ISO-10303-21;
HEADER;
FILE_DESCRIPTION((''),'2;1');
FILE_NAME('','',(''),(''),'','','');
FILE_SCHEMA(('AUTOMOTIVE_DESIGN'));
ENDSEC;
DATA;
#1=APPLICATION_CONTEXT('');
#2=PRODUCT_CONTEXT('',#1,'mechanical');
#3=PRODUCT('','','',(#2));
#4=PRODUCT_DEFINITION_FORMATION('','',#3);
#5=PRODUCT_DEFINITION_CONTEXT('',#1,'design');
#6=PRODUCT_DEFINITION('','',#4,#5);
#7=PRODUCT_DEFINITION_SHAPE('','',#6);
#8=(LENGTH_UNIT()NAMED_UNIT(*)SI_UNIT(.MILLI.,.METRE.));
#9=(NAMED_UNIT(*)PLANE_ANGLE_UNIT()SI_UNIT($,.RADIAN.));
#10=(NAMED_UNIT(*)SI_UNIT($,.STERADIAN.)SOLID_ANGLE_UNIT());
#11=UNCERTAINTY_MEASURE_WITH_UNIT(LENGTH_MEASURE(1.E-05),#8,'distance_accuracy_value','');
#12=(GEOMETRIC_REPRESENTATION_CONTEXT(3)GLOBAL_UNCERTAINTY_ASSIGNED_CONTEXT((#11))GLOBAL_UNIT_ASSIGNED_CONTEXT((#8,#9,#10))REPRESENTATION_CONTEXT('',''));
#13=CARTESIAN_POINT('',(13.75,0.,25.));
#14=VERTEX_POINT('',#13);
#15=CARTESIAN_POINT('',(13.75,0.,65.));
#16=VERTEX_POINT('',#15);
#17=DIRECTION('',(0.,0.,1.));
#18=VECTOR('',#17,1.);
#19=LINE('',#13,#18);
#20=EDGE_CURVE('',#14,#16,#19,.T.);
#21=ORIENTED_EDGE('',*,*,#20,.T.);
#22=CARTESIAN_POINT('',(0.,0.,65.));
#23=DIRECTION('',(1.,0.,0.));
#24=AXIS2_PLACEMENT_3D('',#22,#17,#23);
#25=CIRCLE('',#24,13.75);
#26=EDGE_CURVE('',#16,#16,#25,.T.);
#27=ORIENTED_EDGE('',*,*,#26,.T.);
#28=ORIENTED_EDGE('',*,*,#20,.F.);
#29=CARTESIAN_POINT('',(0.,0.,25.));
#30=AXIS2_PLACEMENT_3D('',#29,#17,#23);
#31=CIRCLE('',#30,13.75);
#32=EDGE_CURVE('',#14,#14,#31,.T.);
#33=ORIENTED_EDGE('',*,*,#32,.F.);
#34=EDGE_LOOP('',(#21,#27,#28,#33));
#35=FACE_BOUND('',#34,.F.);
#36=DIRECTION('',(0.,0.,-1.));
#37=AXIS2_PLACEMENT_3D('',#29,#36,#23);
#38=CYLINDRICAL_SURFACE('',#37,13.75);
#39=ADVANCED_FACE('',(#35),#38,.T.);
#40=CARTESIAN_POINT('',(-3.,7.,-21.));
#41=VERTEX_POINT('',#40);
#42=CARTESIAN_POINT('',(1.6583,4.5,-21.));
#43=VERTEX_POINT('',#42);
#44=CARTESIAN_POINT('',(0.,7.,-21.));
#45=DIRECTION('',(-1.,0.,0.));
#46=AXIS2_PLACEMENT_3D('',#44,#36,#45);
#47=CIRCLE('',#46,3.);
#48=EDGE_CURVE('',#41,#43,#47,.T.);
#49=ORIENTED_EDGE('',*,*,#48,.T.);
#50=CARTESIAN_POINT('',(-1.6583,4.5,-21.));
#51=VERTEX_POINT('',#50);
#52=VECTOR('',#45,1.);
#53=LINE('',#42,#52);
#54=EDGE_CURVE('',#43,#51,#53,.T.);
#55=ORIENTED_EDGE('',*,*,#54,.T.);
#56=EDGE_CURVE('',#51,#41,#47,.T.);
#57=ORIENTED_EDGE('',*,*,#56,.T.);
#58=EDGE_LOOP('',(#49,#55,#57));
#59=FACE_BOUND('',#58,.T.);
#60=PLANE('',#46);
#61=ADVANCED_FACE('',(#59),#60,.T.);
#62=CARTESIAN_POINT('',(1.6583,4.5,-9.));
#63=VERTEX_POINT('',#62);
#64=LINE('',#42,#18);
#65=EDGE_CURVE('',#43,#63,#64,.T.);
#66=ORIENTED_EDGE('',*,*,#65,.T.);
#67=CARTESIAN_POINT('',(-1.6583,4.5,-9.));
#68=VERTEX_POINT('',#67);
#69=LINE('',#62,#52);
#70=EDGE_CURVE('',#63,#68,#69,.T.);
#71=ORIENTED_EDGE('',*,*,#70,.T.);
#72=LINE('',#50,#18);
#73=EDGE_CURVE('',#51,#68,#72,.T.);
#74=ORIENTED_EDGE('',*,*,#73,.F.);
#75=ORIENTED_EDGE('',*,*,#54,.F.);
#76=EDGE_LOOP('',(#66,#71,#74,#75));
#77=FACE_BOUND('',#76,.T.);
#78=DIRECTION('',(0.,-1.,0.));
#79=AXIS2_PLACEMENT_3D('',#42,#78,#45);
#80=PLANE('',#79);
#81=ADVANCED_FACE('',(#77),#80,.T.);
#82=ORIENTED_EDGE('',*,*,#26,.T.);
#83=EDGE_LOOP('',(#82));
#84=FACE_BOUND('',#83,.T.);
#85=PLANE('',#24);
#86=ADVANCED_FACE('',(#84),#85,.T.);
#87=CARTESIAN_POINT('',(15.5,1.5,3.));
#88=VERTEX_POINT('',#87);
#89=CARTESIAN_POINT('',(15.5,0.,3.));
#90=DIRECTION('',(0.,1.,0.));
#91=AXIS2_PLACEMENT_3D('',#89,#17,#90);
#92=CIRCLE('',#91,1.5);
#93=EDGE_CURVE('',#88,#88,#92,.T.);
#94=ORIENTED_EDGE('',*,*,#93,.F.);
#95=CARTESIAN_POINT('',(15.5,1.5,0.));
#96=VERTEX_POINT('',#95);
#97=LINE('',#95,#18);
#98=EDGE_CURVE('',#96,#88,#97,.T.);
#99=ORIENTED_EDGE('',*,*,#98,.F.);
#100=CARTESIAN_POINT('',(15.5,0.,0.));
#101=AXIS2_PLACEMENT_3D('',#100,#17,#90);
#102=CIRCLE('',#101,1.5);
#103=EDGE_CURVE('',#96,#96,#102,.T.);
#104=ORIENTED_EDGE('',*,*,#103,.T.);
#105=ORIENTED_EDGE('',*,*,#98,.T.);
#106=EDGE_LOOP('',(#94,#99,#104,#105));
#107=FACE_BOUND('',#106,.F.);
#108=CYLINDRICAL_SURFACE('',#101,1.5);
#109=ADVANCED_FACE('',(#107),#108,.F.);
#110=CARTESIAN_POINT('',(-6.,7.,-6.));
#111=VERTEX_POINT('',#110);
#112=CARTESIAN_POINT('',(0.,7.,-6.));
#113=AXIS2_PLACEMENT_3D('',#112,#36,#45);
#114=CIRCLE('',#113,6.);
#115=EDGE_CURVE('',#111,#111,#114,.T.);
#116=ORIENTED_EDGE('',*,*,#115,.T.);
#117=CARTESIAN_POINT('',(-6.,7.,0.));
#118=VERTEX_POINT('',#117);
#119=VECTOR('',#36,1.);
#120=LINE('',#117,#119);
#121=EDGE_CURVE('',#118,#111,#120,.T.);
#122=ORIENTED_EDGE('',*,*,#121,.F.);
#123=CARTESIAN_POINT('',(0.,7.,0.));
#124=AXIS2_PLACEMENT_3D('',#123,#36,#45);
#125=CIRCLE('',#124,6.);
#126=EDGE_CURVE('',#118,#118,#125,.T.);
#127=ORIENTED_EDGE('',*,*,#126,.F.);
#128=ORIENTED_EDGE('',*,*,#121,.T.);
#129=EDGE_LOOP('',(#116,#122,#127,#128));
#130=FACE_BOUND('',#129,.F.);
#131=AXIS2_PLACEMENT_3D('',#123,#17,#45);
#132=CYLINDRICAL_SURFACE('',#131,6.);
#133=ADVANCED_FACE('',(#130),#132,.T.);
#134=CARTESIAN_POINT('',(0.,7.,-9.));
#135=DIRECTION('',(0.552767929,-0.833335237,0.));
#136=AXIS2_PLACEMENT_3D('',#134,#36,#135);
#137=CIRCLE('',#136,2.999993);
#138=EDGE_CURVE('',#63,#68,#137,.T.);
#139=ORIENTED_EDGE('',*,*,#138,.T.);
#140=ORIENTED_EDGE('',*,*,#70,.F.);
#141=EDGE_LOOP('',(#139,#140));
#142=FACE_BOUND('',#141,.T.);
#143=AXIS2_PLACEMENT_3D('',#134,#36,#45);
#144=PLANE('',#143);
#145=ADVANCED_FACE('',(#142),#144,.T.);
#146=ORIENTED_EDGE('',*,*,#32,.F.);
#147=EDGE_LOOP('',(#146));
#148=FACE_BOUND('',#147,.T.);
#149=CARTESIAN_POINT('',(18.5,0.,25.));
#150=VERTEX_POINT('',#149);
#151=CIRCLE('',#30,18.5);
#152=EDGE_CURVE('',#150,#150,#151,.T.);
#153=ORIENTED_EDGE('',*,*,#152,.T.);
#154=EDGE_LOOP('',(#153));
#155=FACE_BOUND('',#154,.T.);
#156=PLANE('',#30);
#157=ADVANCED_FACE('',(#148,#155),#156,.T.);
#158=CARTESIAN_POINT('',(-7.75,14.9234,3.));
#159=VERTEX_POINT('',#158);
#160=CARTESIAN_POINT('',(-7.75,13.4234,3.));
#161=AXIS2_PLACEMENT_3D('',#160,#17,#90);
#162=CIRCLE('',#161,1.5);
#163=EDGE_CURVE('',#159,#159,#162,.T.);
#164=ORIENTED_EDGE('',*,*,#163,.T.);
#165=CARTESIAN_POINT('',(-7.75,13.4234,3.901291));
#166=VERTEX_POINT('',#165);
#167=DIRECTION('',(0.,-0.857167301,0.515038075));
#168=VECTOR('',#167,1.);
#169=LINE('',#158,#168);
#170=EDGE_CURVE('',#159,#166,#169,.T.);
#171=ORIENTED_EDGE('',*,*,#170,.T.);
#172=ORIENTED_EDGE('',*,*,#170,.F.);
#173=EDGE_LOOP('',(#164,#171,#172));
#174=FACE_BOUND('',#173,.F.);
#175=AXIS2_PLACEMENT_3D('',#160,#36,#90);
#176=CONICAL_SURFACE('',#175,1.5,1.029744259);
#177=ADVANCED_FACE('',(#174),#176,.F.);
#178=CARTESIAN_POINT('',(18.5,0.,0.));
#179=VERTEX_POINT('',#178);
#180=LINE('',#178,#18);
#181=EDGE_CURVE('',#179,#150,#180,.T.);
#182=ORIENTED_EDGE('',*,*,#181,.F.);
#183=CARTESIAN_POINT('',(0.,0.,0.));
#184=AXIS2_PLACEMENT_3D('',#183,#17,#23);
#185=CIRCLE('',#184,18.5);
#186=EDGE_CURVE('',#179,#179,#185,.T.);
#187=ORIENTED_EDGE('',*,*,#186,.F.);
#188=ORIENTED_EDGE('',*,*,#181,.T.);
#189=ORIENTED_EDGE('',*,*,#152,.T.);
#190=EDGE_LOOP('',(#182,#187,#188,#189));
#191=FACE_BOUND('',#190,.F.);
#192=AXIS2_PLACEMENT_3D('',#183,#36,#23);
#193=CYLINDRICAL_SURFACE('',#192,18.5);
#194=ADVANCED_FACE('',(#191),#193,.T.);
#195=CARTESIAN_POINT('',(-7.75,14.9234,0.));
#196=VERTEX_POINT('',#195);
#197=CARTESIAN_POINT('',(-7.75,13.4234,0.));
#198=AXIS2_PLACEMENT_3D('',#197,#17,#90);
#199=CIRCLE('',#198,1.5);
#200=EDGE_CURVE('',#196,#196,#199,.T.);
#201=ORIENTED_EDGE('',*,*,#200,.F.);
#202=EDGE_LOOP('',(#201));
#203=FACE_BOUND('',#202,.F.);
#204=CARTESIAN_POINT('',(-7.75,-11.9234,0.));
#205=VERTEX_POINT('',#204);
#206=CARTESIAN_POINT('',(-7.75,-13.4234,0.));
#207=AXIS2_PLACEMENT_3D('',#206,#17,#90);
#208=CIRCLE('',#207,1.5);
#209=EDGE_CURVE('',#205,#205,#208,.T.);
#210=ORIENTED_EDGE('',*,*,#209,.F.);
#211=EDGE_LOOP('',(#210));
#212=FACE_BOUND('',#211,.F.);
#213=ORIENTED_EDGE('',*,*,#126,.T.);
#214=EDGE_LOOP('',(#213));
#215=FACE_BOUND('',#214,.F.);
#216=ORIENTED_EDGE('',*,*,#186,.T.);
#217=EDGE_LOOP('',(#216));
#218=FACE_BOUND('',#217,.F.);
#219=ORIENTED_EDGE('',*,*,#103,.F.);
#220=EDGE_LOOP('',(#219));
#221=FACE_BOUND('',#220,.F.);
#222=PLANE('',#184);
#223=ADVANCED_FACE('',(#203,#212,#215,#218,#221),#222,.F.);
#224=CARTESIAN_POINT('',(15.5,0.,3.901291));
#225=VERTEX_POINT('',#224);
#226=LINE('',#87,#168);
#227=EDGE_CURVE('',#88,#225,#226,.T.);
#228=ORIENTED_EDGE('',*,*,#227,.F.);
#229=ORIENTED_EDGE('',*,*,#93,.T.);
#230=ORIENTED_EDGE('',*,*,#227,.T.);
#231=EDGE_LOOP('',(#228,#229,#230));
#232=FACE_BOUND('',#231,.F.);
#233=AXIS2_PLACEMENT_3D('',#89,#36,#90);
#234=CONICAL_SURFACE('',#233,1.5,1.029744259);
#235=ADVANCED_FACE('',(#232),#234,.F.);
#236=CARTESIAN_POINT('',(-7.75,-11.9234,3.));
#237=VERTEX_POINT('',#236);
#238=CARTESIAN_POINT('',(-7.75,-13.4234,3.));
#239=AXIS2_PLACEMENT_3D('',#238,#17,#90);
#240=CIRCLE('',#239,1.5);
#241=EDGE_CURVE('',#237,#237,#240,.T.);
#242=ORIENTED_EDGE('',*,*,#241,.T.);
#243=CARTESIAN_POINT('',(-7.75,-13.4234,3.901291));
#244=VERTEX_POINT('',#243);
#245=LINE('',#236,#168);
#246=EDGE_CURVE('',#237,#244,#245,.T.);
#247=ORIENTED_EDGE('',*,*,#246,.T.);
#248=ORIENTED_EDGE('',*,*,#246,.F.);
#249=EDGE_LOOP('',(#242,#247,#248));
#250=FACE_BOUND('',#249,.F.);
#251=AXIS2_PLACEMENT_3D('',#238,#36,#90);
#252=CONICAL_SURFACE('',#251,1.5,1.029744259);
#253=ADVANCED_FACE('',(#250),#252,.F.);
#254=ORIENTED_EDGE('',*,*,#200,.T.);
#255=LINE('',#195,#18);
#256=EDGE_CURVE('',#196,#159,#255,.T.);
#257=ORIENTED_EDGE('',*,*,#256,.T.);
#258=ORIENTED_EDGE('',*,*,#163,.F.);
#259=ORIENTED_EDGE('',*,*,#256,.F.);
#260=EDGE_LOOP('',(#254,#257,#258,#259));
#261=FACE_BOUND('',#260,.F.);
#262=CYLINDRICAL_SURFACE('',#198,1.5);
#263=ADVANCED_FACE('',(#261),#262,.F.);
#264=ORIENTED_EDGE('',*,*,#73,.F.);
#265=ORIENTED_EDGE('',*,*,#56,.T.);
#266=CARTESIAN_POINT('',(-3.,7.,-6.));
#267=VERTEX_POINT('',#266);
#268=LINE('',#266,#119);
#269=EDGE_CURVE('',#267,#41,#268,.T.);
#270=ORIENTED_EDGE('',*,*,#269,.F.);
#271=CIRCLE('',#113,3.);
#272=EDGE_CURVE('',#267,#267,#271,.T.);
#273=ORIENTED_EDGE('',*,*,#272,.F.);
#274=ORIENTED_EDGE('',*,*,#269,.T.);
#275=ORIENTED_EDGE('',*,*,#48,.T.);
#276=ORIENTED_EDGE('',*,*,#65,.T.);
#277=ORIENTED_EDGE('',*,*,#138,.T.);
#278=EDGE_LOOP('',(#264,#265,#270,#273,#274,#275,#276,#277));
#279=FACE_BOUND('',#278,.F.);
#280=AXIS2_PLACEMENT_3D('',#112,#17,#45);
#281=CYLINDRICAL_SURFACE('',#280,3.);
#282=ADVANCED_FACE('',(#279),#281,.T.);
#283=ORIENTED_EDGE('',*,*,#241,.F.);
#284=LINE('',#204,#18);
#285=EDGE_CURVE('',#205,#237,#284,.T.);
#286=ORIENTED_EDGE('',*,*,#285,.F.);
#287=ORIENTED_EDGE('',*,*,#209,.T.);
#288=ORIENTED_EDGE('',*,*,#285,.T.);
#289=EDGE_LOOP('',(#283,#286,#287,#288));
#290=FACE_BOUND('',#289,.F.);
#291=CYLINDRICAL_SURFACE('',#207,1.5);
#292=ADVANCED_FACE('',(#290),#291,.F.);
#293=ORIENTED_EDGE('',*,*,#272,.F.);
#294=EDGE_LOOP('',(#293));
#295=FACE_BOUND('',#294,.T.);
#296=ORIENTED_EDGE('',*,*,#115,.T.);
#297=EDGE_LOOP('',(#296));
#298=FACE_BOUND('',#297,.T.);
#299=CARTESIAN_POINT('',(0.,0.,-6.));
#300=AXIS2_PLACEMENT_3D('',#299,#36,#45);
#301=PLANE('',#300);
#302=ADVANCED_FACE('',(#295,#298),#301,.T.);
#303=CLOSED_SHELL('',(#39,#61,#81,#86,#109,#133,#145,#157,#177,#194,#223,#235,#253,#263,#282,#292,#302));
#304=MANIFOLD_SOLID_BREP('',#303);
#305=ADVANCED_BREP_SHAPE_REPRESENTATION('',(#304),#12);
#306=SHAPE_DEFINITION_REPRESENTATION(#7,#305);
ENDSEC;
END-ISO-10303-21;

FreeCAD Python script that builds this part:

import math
import FreeCAD as App
import Part
import Sketcher
from FreeCAD import Vector
Q = App.Units.Quantity

doc = App.newDocument("Part")
body = doc.addObject("PartDesign::Body", "Body")

# Sketch on XY plane
sketch1 = body.newObject("Sketcher::SketchObject", "Sketch")
sketch1.AttachmentSupport = (doc.getObject("XY_Plane"), [""])
sketch1.MapMode = "FlatFace"
sketch1.addGeometry(Part.Circle(Vector(0, 0, 0), Vector(0, 0, 1), 18), False)
sketch1.addConstraint(Sketcher.Constraint("Coincident", 0, 3, -1, 1))
sketch1.addConstraint(Sketcher.Constraint("Diameter", 0, Q("37 mm")))
pad1 = body.newObject("PartDesign::Pad", "Pad")
pad1.Profile = sketch1
pad1.Length = 25

# Sketch on XY plane
sketch2 = body.newObject("Sketcher::SketchObject", "Sketch001")
sketch2.AttachmentSupport = (doc.getObject("XY_Plane"), [""])
sketch2.MapMode = "FlatFace"
sketch2.AttachmentOffset = App.Placement(Vector(0, 0, 25), App.Rotation())
sketch2.addGeometry(Part.Circle(Vector(0, 0, 0), Vector(0, 0, 1), 14), False)
sketch2.addConstraint(Sketcher.Constraint("Coincident", 0, 3, -1, 1))
sketch2.addConstraint(Sketcher.Constraint("Diameter", 0, Q("27.5 mm")))
pad2 = body.newObject("PartDesign::Pad", "Pad001")
pad2.Profile = sketch2
pad2.Length = 40

# Sketch on XY plane
sketch3 = body.newObject("Sketcher::SketchObject", "Sketch002")
sketch3.AttachmentSupport = (doc.getObject("XY_Plane"), [""])
sketch3.MapMode = "FlatFace"
sketch3.addGeometry(Part.Circle(Vector(0, 7, 0), Vector(0, 0, 1), 6), False)
sketch3.addConstraint(Sketcher.Constraint("PointOnObject", 0, 3, -2))
sketch3.addConstraint(Sketcher.Constraint("Diameter", 0, Q("12 mm")))
sketch3.addConstraint(Sketcher.Constraint("DistanceY", -1, 1, 0, 3, Q("7 mm")))
pad3 = body.newObject("PartDesign::Pad", "Pad002")
pad3.Profile = sketch3
pad3.Length = 6
pad3.Reversed = True

# Sketch on XY plane
sketch4 = body.newObject("Sketcher::SketchObject", "Sketch003")
sketch4.AttachmentSupport = (doc.getObject("XY_Plane"), [""])
sketch4.MapMode = "FlatFace"
sketch4.AttachmentOffset = App.Placement(Vector(0, 0, -6), App.Rotation())
sketch4.addGeometry(Part.Circle(Vector(0, 7, 0), Vector(0, 0, 1), 3), False)
sketch4.addConstraint(Sketcher.Constraint("PointOnObject", 0, 3, -2))
sketch4.addConstraint(Sketcher.Constraint("Diameter", 0, Q("6 mm")))
sketch4.addConstraint(Sketcher.Constraint("DistanceY", -1, 1, 0, 3, Q("7 mm")))
pad4 = body.newObject("PartDesign::Pad", "Pad003")
pad4.Profile = sketch4
pad4.Length = 15
pad4.Reversed = True

# Sketch on XY plane
sketch5 = body.newObject("Sketcher::SketchObject", "Sketch004")
sketch5.AttachmentSupport = (doc.getObject("XY_Plane"), [""])
sketch5.MapMode = "FlatFace"
sketch5.addGeometry(Part.Circle(Vector(15.5, 0, 0), Vector(0, 0, 1), 1.5), False)
sketch5.addGeometry(Part.Circle(Vector(-7.8, -13.4, 0), Vector(0, 0, 1), 1.5), False)
sketch5.addGeometry(Part.Circle(Vector(-7.8, 13.4, 0), Vector(0, 0, 1), 1.5), False)
sketch5.addConstraint(Sketcher.Constraint("Equal", 0, 1))
sketch5.addConstraint(Sketcher.Constraint("Equal", 1, 2))
sketch5.addConstraint(Sketcher.Constraint("Symmetric", 1, 3, 2, 3, -1))
sketch5.addConstraint(Sketcher.Constraint("PointOnObject", 0, 3, -1))
sketch5.addConstraint(Sketcher.Constraint("Diameter", 0, Q("3 mm")))
sketch5.addConstraint(Sketcher.Constraint("DistanceX", -1, 1, 0, 3, Q("15.5 mm")))
sketch5.addConstraint(Sketcher.Constraint("DistanceX", 1, 3, -1, 1, Q("7.75 mm")))
sketch5.addConstraint(Sketcher.Constraint("DistanceY", 1, 3, -1, 1, Q("13.4234 mm")))
doc.recompute()
hole = body.newObject("PartDesign::Hole", "Hole")
hole.Profile = sketch5
hole.ThreadType = "None"
hole.Diameter = 3
hole.DepthType = "Dimension"
hole.Depth = 3
hole.DrillPoint = "Angled"
hole.DrillPointAngle = 118
hole.Reversed = True

# Sketch on XY plane
sketch6 = body.newObject("Sketcher::SketchObject", "Sketch005")
sketch6.AttachmentSupport = (doc.getObject("XY_Plane"), [""])
sketch6.MapMode = "FlatFace"
sketch6.AttachmentOffset = App.Placement(Vector(0, 0, -21), App.Rotation())
sketch6.addGeometry(Part.LineSegment(Vector(-1.7, 4.5, 0), Vector(1.7, 4.5, 0)), False)
sketch6.addGeometry(Part.ArcOfCircle(Part.Circle(Vector(0, 7, 0), Vector(0, 0, 1), 3), math.radians(-124), math.radians(-56)), False)
sketch6.addConstraint(Sketcher.Constraint("Coincident", 0, 1, 1, 1))
sketch6.addConstraint(Sketcher.Constraint("Coincident", 1, 2, 0, 2))
sketch6.addConstraint(Sketcher.Constraint("Horizontal", 0))
sketch6.addConstraint(Sketcher.Constraint("PointOnObject", 1, 3, -2))
sketch6.addConstraint(Sketcher.Constraint("Radius", 1, Q("3 mm")))
sketch6.addConstraint(Sketcher.Constraint("DistanceY", 0, 1, 1, 3, Q("2.5 mm")))
sketch6.addConstraint(Sketcher.Constraint("DistanceY", -1, 1, 1, 3, Q("7 mm")))
pocket1 = body.newObject("PartDesign::Pocket", "Pocket")
pocket1.Profile = sketch6
pocket1.Length = 12
pocket1.Reversed = True

doc.recompute()
